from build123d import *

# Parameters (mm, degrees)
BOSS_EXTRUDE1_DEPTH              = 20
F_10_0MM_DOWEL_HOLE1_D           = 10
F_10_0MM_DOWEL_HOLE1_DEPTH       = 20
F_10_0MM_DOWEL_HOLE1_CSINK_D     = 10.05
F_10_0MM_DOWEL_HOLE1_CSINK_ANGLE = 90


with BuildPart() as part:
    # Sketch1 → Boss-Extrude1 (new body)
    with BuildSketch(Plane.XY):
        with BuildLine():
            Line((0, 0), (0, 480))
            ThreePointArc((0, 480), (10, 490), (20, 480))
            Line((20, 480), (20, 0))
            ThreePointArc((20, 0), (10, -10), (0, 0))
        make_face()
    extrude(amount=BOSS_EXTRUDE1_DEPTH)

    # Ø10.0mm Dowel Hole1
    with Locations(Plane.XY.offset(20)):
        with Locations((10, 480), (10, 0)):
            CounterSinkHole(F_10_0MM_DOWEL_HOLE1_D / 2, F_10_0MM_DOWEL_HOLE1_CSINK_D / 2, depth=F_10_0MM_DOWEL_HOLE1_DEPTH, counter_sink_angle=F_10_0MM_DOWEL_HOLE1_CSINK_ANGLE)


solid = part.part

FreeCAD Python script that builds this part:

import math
import FreeCAD as App
import Part
import Sketcher

V = App.Vector

doc = App.newDocument("Part")
params = doc.addObject("Spreadsheet::Sheet", "Params")
for row, (alias, value) in enumerate([
    ("sketch1_radius", "10 mm"),
    ("sketch1_height", "480 mm"),
    ("pad1_length", "20 mm"),
    ("sketch2_diameter", "10 mm"),
    ("hole_diameter", "10 mm"),
    ("hole_depth", "20 mm"),
    ("hole_csink_diameter", "10.05 mm"),
], start=1):
    params.set(f"A{row}", alias)
    params.set(f"B{row}", "=" + value)
    params.setAlias(f"B{row}", alias)

body = doc.addObject("PartDesign::Body", "Body")

sketch1 = body.newObject("Sketcher::SketchObject", "Sketch")
sketch1.AttachmentSupport = (doc.getObject("XY_Plane"), [""])
sketch1.MapMode = "FlatFace"
sketch1.addGeometry([
    Part.LineSegment(V(0, 480, 0), V(0, 0, 0)),
    Part.ArcOfCircle(Part.Circle(V(10, 0, 0), V(0, 0, 1), 10), math.radians(180), math.radians(360)),
    Part.LineSegment(V(20, 0, 0), V(20, 480, 0)),
    Part.ArcOfCircle(Part.Circle(V(10, 480, 0), V(0, 0, 1), 10), math.radians(0), math.radians(180)),
], False)
sketch1.addConstraint([
    Sketcher.Constraint("Tangent", 0, 2, 1, 1),
    Sketcher.Constraint("Tangent", 1, 2, 2, 1),
    Sketcher.Constraint("Tangent", 2, 2, 3, 1),
    Sketcher.Constraint("Tangent", 3, 2, 0, 1),
    Sketcher.Constraint("Vertical", 0),
    Sketcher.Constraint("Vertical", 2),
    Sketcher.Constraint("Coincident", 0, 2, -1, 1),
    Sketcher.Constraint("Radius", 1, 10.0),
    Sketcher.Constraint("DistanceY", 0, 2, 0, 1, 480.0),
])
sketch1.setExpression("Constraints[7]", "Params.sketch1_radius")
sketch1.setExpression("Constraints[8]", "Params.sketch1_height")
pad1 = body.newObject("PartDesign::Pad", "Pad")
pad1.Profile = sketch1
pad1.setExpression("Length", "Params.pad1_length")

sketch2 = body.newObject("Sketcher::SketchObject", "Sketch001")
sketch2.AttachmentSupport = (doc.getObject("XY_Plane"), [""])
sketch2.MapMode = "FlatFace"
sketch2.AttachmentOffset = App.Placement(V(0, 0, 20), App.Rotation())
sketch2.addGeometry([
    Part.Circle(V(10, 480, 0), V(0, 0, 1), 5),
    Part.Circle(V(10, 0, 0), V(0, 0, 1), 5),
], False)
sketch2.addConstraint([
    Sketcher.Constraint("Equal", 0, 1),
    Sketcher.Constraint("PointOnObject", 1, 3, -1),
    Sketcher.Constraint("Vertical", 0, 3, 1, 3),
    Sketcher.Constraint("Diameter", 0, 10.0),
    Sketcher.Constraint("DistanceX", -1, 1, 0, 3, 10.0),
    Sketcher.Constraint("DistanceY", -1, 1, 0, 3, 480.0),
])
sketch2.setExpression("Constraints[3]", "Params.sketch2_diameter")
doc.recompute()
hole = body.newObject("PartDesign::Hole", "Hole")
hole.Profile = sketch2
hole.ThreadType = "None"
hole.setExpression("Diameter", "Params.hole_diameter")
hole.DepthType = "Dimension"
hole.setExpression("Depth", "Params.hole_depth")
hole.DrillPoint = "Flat"
hole.HoleCutType = "Countersink"
hole.setExpression("HoleCutDiameter", "Params.hole_csink_diameter")
hole.HoleCutCountersinkAngle = 90

doc.recompute()
